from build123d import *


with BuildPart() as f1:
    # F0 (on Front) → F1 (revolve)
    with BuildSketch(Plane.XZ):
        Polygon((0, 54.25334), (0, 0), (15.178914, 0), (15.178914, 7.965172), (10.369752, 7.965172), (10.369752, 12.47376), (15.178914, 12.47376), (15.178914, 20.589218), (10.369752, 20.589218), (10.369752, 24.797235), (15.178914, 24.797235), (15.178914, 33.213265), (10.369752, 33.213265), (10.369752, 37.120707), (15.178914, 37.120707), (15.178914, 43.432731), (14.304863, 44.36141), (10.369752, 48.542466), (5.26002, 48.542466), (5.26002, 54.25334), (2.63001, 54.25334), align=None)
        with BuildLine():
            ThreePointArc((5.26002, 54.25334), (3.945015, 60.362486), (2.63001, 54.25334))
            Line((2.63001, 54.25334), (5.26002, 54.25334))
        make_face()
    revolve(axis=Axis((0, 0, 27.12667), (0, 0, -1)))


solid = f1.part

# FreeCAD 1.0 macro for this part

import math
import FreeCAD as App
import Part
import Sketcher

doc = App.newDocument("Part")
body = doc.addObject("PartDesign::Body", "Body")

# Sketch on XZ plane
sketch1 = body.newObject("Sketcher::SketchObject", "Sketch")
sketch1.AttachmentSupport = (doc.getObject("XZ_Plane"), [""])
sketch1.MapMode = "FlatFace"
sketch1.addGeometry([
    Part.LineSegment(App.Vector(0, 54.3, 0), App.Vector(0, 0, 0)),  # 0
    Part.LineSegment(App.Vector(0, 0, 0), App.Vector(15.2, 0, 0)),  # 1
    Part.LineSegment(App.Vector(15.2, 0, 0), App.Vector(15.2, 8, 0)),  # 2
    Part.LineSegment(App.Vector(15.2, 8, 0), App.Vector(10.4, 8, 0)),  # 3
    Part.LineSegment(App.Vector(10.4, 8, 0), App.Vector(10.4, 12.5, 0)),  # 4
    Part.LineSegment(App.Vector(10.4, 12.5, 0), App.Vector(15.2, 12.5, 0)),  # 5
    Part.LineSegment(App.Vector(15.2, 12.5, 0), App.Vector(15.2, 20.6, 0)),  # 6
    Part.LineSegment(App.Vector(15.2, 20.6, 0), App.Vector(10.4, 20.6, 0)),  # 7
    Part.LineSegment(App.Vector(10.4, 20.6, 0), App.Vector(10.4, 24.8, 0)),  # 8
    Part.LineSegment(App.Vector(10.4, 24.8, 0), App.Vector(15.2, 24.8, 0)),  # 9
    Part.LineSegment(App.Vector(15.2, 24.8, 0), App.Vector(15.2, 33.2, 0)),  # 10
    Part.LineSegment(App.Vector(15.2, 33.2, 0), App.Vector(10.4, 33.2, 0)),  # 11
    Part.LineSegment(App.Vector(10.4, 33.2, 0), App.Vector(10.4, 37.1, 0)),  # 12
    Part.LineSegment(App.Vector(10.4, 37.1, 0), App.Vector(15.2, 37.1, 0)),  # 13
    Part.LineSegment(App.Vector(15.2, 37.1, 0), App.Vector(15.2, 43.4, 0)),  # 14
    Part.LineSegment(App.Vector(15.2, 43.4, 0), App.Vector(14.3, 44.4, 0)),  # 15
    Part.LineSegment(App.Vector(14.3, 44.4, 0), App.Vector(10.4, 48.5, 0)),  # 16
    Part.LineSegment(App.Vector(10.4, 48.5, 0), App.Vector(5.3, 48.5, 0)),  # 17
    Part.LineSegment(App.Vector(5.3, 48.5, 0), App.Vector(5.3, 54.3, 0)),  # 18
    Part.ArcOfCircle(Part.Circle(App.Vector(3.9, 57.2, 0), App.Vector(0, 0, 1), 3.2), math.radians(-66), math.radians(246)),  # 19
    Part.LineSegment(App.Vector(2.6, 54.3, 0), App.Vector(0, 54.3, 0)),  # 20
], False)
sketch1.addConstraint([
    Sketcher.Constraint("Coincident", 0, 2, 1, 1),
    Sketcher.Constraint("Coincident", 1, 2, 2, 1),
    Sketcher.Constraint("Coincident", 2, 2, 3, 1),
    Sketcher.Constraint("Coincident", 3, 2, 4, 1),
    Sketcher.Constraint("Coincident", 4, 2, 5, 1),
    Sketcher.Constraint("Coincident", 5, 2, 6, 1),
    Sketcher.Constraint("Coincident", 6, 2, 7, 1),
    Sketcher.Constraint("Coincident", 7, 2, 8, 1),
    Sketcher.Constraint("Coincident", 8, 2, 9, 1),
    Sketcher.Constraint("Coincident", 9, 2, 10, 1),
    Sketcher.Constraint("Coincident", 10, 2, 11, 1),
    Sketcher.Constraint("Coincident", 11, 2, 12, 1),
    Sketcher.Constraint("Coincident", 12, 2, 13, 1),
    Sketcher.Constraint("Coincident", 13, 2, 14, 1),
    Sketcher.Constraint("Coincident", 14, 2, 15, 1),
    Sketcher.Constraint("Coincident", 15, 2, 16, 1),
    Sketcher.Constraint("Coincident", 16, 2, 17, 1),
    Sketcher.Constraint("Coincident", 17, 2, 18, 1),
    Sketcher.Constraint("Coincident", 18, 2, 19, 1),
    Sketcher.Constraint("Coincident", 19, 2, 20, 1),
    Sketcher.Constraint("Coincident", 20, 2, 0, 1),
    Sketcher.Constraint("Vertical", 0),
    Sketcher.Constraint("Horizontal", 1),
    Sketcher.Constraint("Vertical", 2),
    Sketcher.Constraint("Horizontal", 3),
    Sketcher.Constraint("Vertical", 4),
    Sketcher.Constraint("Horizontal", 5),
    Sketcher.Constraint("Vertical", 6),
    Sketcher.Constraint("Horizontal", 7),
    Sketcher.Constraint("Vertical", 8),
    Sketcher.Constraint("Horizontal", 9),
    Sketcher.Constraint("Vertical", 10),
    Sketcher.Constraint("Horizontal", 11),
    Sketcher.Constraint("Vertical", 12),
    Sketcher.Constraint("Horizontal", 13),
    Sketcher.Constraint("Vertical", 14),
    Sketcher.Constraint("Horizontal", 17),
    Sketcher.Constraint("Vertical", 18),
    Sketcher.Constraint("Horizontal", 20),
    Sketcher.Constraint("Coincident", 0, 2, -1, 1),
    Sketcher.Constraint("Parallel", 15, 16),
    Sketcher.Constraint("Horizontal", 18, 2, 19, 2),
    Sketcher.Constraint("Vertical", 2, 2, 5, 2),
    Sketcher.Constraint("Vertical", 4, 2, 7, 2),
    Sketcher.Constraint("Vertical", 6, 2, 9, 2),
    Sketcher.Constraint("Vertical", 8, 2, 11, 2),
    Sketcher.Constraint("Vertical", 10, 2, 13, 2),
    Sketcher.Constraint("Vertical", 12, 2, 16, 2),
    Sketcher.Constraint("Radius", 19, 3.196102),
    Sketcher.Constraint("DistanceX", 20, 2, 20, 1, 2.63001),
    Sketcher.Constraint("DistanceY", 0, 2, 0, 1, 54.25334),
    Sketcher.Constraint("DistanceY", 4, 1, 4, 2, 4.508588),
    Sketcher.Constraint("DistanceY", 10, 1, 10, 2, 8.41603),
    Sketcher.Constraint("DistanceX", 19, 3, 1, 2, 11.233899),
    Sketcher.Constraint("Distance", 16, 5.741631),
    Sketcher.Constraint("DistanceX", 1, 1, 1, 2, 15.178914),
    Sketcher.Constraint("DistanceX", 3, 2, 3, 1, 4.809162),
    Sketcher.Constraint("DistanceY", 2, 1, 2, 2, 7.965172),
    Sketcher.Constraint("DistanceY", 6, 1, 6, 2, 8.115458),
    Sketcher.Constraint("DistanceY", 8, 1, 8, 2, 4.208017),
    Sketcher.Constraint("DistanceY", 12, 1, 12, 2, 3.907442),
    Sketcher.Constraint("DistanceY", 14, 1, 14, 2, 6.312024),
    Sketcher.Constraint("DistanceY", 18, 1, 18, 2, 5.710874),
])
revolution = body.newObject("PartDesign::Revolution", "Revolution")
revolution.Profile = sketch1
revolution.ReferenceAxis = (sketch1, ["V_Axis"])
revolution.Angle = 360

doc.recompute()
